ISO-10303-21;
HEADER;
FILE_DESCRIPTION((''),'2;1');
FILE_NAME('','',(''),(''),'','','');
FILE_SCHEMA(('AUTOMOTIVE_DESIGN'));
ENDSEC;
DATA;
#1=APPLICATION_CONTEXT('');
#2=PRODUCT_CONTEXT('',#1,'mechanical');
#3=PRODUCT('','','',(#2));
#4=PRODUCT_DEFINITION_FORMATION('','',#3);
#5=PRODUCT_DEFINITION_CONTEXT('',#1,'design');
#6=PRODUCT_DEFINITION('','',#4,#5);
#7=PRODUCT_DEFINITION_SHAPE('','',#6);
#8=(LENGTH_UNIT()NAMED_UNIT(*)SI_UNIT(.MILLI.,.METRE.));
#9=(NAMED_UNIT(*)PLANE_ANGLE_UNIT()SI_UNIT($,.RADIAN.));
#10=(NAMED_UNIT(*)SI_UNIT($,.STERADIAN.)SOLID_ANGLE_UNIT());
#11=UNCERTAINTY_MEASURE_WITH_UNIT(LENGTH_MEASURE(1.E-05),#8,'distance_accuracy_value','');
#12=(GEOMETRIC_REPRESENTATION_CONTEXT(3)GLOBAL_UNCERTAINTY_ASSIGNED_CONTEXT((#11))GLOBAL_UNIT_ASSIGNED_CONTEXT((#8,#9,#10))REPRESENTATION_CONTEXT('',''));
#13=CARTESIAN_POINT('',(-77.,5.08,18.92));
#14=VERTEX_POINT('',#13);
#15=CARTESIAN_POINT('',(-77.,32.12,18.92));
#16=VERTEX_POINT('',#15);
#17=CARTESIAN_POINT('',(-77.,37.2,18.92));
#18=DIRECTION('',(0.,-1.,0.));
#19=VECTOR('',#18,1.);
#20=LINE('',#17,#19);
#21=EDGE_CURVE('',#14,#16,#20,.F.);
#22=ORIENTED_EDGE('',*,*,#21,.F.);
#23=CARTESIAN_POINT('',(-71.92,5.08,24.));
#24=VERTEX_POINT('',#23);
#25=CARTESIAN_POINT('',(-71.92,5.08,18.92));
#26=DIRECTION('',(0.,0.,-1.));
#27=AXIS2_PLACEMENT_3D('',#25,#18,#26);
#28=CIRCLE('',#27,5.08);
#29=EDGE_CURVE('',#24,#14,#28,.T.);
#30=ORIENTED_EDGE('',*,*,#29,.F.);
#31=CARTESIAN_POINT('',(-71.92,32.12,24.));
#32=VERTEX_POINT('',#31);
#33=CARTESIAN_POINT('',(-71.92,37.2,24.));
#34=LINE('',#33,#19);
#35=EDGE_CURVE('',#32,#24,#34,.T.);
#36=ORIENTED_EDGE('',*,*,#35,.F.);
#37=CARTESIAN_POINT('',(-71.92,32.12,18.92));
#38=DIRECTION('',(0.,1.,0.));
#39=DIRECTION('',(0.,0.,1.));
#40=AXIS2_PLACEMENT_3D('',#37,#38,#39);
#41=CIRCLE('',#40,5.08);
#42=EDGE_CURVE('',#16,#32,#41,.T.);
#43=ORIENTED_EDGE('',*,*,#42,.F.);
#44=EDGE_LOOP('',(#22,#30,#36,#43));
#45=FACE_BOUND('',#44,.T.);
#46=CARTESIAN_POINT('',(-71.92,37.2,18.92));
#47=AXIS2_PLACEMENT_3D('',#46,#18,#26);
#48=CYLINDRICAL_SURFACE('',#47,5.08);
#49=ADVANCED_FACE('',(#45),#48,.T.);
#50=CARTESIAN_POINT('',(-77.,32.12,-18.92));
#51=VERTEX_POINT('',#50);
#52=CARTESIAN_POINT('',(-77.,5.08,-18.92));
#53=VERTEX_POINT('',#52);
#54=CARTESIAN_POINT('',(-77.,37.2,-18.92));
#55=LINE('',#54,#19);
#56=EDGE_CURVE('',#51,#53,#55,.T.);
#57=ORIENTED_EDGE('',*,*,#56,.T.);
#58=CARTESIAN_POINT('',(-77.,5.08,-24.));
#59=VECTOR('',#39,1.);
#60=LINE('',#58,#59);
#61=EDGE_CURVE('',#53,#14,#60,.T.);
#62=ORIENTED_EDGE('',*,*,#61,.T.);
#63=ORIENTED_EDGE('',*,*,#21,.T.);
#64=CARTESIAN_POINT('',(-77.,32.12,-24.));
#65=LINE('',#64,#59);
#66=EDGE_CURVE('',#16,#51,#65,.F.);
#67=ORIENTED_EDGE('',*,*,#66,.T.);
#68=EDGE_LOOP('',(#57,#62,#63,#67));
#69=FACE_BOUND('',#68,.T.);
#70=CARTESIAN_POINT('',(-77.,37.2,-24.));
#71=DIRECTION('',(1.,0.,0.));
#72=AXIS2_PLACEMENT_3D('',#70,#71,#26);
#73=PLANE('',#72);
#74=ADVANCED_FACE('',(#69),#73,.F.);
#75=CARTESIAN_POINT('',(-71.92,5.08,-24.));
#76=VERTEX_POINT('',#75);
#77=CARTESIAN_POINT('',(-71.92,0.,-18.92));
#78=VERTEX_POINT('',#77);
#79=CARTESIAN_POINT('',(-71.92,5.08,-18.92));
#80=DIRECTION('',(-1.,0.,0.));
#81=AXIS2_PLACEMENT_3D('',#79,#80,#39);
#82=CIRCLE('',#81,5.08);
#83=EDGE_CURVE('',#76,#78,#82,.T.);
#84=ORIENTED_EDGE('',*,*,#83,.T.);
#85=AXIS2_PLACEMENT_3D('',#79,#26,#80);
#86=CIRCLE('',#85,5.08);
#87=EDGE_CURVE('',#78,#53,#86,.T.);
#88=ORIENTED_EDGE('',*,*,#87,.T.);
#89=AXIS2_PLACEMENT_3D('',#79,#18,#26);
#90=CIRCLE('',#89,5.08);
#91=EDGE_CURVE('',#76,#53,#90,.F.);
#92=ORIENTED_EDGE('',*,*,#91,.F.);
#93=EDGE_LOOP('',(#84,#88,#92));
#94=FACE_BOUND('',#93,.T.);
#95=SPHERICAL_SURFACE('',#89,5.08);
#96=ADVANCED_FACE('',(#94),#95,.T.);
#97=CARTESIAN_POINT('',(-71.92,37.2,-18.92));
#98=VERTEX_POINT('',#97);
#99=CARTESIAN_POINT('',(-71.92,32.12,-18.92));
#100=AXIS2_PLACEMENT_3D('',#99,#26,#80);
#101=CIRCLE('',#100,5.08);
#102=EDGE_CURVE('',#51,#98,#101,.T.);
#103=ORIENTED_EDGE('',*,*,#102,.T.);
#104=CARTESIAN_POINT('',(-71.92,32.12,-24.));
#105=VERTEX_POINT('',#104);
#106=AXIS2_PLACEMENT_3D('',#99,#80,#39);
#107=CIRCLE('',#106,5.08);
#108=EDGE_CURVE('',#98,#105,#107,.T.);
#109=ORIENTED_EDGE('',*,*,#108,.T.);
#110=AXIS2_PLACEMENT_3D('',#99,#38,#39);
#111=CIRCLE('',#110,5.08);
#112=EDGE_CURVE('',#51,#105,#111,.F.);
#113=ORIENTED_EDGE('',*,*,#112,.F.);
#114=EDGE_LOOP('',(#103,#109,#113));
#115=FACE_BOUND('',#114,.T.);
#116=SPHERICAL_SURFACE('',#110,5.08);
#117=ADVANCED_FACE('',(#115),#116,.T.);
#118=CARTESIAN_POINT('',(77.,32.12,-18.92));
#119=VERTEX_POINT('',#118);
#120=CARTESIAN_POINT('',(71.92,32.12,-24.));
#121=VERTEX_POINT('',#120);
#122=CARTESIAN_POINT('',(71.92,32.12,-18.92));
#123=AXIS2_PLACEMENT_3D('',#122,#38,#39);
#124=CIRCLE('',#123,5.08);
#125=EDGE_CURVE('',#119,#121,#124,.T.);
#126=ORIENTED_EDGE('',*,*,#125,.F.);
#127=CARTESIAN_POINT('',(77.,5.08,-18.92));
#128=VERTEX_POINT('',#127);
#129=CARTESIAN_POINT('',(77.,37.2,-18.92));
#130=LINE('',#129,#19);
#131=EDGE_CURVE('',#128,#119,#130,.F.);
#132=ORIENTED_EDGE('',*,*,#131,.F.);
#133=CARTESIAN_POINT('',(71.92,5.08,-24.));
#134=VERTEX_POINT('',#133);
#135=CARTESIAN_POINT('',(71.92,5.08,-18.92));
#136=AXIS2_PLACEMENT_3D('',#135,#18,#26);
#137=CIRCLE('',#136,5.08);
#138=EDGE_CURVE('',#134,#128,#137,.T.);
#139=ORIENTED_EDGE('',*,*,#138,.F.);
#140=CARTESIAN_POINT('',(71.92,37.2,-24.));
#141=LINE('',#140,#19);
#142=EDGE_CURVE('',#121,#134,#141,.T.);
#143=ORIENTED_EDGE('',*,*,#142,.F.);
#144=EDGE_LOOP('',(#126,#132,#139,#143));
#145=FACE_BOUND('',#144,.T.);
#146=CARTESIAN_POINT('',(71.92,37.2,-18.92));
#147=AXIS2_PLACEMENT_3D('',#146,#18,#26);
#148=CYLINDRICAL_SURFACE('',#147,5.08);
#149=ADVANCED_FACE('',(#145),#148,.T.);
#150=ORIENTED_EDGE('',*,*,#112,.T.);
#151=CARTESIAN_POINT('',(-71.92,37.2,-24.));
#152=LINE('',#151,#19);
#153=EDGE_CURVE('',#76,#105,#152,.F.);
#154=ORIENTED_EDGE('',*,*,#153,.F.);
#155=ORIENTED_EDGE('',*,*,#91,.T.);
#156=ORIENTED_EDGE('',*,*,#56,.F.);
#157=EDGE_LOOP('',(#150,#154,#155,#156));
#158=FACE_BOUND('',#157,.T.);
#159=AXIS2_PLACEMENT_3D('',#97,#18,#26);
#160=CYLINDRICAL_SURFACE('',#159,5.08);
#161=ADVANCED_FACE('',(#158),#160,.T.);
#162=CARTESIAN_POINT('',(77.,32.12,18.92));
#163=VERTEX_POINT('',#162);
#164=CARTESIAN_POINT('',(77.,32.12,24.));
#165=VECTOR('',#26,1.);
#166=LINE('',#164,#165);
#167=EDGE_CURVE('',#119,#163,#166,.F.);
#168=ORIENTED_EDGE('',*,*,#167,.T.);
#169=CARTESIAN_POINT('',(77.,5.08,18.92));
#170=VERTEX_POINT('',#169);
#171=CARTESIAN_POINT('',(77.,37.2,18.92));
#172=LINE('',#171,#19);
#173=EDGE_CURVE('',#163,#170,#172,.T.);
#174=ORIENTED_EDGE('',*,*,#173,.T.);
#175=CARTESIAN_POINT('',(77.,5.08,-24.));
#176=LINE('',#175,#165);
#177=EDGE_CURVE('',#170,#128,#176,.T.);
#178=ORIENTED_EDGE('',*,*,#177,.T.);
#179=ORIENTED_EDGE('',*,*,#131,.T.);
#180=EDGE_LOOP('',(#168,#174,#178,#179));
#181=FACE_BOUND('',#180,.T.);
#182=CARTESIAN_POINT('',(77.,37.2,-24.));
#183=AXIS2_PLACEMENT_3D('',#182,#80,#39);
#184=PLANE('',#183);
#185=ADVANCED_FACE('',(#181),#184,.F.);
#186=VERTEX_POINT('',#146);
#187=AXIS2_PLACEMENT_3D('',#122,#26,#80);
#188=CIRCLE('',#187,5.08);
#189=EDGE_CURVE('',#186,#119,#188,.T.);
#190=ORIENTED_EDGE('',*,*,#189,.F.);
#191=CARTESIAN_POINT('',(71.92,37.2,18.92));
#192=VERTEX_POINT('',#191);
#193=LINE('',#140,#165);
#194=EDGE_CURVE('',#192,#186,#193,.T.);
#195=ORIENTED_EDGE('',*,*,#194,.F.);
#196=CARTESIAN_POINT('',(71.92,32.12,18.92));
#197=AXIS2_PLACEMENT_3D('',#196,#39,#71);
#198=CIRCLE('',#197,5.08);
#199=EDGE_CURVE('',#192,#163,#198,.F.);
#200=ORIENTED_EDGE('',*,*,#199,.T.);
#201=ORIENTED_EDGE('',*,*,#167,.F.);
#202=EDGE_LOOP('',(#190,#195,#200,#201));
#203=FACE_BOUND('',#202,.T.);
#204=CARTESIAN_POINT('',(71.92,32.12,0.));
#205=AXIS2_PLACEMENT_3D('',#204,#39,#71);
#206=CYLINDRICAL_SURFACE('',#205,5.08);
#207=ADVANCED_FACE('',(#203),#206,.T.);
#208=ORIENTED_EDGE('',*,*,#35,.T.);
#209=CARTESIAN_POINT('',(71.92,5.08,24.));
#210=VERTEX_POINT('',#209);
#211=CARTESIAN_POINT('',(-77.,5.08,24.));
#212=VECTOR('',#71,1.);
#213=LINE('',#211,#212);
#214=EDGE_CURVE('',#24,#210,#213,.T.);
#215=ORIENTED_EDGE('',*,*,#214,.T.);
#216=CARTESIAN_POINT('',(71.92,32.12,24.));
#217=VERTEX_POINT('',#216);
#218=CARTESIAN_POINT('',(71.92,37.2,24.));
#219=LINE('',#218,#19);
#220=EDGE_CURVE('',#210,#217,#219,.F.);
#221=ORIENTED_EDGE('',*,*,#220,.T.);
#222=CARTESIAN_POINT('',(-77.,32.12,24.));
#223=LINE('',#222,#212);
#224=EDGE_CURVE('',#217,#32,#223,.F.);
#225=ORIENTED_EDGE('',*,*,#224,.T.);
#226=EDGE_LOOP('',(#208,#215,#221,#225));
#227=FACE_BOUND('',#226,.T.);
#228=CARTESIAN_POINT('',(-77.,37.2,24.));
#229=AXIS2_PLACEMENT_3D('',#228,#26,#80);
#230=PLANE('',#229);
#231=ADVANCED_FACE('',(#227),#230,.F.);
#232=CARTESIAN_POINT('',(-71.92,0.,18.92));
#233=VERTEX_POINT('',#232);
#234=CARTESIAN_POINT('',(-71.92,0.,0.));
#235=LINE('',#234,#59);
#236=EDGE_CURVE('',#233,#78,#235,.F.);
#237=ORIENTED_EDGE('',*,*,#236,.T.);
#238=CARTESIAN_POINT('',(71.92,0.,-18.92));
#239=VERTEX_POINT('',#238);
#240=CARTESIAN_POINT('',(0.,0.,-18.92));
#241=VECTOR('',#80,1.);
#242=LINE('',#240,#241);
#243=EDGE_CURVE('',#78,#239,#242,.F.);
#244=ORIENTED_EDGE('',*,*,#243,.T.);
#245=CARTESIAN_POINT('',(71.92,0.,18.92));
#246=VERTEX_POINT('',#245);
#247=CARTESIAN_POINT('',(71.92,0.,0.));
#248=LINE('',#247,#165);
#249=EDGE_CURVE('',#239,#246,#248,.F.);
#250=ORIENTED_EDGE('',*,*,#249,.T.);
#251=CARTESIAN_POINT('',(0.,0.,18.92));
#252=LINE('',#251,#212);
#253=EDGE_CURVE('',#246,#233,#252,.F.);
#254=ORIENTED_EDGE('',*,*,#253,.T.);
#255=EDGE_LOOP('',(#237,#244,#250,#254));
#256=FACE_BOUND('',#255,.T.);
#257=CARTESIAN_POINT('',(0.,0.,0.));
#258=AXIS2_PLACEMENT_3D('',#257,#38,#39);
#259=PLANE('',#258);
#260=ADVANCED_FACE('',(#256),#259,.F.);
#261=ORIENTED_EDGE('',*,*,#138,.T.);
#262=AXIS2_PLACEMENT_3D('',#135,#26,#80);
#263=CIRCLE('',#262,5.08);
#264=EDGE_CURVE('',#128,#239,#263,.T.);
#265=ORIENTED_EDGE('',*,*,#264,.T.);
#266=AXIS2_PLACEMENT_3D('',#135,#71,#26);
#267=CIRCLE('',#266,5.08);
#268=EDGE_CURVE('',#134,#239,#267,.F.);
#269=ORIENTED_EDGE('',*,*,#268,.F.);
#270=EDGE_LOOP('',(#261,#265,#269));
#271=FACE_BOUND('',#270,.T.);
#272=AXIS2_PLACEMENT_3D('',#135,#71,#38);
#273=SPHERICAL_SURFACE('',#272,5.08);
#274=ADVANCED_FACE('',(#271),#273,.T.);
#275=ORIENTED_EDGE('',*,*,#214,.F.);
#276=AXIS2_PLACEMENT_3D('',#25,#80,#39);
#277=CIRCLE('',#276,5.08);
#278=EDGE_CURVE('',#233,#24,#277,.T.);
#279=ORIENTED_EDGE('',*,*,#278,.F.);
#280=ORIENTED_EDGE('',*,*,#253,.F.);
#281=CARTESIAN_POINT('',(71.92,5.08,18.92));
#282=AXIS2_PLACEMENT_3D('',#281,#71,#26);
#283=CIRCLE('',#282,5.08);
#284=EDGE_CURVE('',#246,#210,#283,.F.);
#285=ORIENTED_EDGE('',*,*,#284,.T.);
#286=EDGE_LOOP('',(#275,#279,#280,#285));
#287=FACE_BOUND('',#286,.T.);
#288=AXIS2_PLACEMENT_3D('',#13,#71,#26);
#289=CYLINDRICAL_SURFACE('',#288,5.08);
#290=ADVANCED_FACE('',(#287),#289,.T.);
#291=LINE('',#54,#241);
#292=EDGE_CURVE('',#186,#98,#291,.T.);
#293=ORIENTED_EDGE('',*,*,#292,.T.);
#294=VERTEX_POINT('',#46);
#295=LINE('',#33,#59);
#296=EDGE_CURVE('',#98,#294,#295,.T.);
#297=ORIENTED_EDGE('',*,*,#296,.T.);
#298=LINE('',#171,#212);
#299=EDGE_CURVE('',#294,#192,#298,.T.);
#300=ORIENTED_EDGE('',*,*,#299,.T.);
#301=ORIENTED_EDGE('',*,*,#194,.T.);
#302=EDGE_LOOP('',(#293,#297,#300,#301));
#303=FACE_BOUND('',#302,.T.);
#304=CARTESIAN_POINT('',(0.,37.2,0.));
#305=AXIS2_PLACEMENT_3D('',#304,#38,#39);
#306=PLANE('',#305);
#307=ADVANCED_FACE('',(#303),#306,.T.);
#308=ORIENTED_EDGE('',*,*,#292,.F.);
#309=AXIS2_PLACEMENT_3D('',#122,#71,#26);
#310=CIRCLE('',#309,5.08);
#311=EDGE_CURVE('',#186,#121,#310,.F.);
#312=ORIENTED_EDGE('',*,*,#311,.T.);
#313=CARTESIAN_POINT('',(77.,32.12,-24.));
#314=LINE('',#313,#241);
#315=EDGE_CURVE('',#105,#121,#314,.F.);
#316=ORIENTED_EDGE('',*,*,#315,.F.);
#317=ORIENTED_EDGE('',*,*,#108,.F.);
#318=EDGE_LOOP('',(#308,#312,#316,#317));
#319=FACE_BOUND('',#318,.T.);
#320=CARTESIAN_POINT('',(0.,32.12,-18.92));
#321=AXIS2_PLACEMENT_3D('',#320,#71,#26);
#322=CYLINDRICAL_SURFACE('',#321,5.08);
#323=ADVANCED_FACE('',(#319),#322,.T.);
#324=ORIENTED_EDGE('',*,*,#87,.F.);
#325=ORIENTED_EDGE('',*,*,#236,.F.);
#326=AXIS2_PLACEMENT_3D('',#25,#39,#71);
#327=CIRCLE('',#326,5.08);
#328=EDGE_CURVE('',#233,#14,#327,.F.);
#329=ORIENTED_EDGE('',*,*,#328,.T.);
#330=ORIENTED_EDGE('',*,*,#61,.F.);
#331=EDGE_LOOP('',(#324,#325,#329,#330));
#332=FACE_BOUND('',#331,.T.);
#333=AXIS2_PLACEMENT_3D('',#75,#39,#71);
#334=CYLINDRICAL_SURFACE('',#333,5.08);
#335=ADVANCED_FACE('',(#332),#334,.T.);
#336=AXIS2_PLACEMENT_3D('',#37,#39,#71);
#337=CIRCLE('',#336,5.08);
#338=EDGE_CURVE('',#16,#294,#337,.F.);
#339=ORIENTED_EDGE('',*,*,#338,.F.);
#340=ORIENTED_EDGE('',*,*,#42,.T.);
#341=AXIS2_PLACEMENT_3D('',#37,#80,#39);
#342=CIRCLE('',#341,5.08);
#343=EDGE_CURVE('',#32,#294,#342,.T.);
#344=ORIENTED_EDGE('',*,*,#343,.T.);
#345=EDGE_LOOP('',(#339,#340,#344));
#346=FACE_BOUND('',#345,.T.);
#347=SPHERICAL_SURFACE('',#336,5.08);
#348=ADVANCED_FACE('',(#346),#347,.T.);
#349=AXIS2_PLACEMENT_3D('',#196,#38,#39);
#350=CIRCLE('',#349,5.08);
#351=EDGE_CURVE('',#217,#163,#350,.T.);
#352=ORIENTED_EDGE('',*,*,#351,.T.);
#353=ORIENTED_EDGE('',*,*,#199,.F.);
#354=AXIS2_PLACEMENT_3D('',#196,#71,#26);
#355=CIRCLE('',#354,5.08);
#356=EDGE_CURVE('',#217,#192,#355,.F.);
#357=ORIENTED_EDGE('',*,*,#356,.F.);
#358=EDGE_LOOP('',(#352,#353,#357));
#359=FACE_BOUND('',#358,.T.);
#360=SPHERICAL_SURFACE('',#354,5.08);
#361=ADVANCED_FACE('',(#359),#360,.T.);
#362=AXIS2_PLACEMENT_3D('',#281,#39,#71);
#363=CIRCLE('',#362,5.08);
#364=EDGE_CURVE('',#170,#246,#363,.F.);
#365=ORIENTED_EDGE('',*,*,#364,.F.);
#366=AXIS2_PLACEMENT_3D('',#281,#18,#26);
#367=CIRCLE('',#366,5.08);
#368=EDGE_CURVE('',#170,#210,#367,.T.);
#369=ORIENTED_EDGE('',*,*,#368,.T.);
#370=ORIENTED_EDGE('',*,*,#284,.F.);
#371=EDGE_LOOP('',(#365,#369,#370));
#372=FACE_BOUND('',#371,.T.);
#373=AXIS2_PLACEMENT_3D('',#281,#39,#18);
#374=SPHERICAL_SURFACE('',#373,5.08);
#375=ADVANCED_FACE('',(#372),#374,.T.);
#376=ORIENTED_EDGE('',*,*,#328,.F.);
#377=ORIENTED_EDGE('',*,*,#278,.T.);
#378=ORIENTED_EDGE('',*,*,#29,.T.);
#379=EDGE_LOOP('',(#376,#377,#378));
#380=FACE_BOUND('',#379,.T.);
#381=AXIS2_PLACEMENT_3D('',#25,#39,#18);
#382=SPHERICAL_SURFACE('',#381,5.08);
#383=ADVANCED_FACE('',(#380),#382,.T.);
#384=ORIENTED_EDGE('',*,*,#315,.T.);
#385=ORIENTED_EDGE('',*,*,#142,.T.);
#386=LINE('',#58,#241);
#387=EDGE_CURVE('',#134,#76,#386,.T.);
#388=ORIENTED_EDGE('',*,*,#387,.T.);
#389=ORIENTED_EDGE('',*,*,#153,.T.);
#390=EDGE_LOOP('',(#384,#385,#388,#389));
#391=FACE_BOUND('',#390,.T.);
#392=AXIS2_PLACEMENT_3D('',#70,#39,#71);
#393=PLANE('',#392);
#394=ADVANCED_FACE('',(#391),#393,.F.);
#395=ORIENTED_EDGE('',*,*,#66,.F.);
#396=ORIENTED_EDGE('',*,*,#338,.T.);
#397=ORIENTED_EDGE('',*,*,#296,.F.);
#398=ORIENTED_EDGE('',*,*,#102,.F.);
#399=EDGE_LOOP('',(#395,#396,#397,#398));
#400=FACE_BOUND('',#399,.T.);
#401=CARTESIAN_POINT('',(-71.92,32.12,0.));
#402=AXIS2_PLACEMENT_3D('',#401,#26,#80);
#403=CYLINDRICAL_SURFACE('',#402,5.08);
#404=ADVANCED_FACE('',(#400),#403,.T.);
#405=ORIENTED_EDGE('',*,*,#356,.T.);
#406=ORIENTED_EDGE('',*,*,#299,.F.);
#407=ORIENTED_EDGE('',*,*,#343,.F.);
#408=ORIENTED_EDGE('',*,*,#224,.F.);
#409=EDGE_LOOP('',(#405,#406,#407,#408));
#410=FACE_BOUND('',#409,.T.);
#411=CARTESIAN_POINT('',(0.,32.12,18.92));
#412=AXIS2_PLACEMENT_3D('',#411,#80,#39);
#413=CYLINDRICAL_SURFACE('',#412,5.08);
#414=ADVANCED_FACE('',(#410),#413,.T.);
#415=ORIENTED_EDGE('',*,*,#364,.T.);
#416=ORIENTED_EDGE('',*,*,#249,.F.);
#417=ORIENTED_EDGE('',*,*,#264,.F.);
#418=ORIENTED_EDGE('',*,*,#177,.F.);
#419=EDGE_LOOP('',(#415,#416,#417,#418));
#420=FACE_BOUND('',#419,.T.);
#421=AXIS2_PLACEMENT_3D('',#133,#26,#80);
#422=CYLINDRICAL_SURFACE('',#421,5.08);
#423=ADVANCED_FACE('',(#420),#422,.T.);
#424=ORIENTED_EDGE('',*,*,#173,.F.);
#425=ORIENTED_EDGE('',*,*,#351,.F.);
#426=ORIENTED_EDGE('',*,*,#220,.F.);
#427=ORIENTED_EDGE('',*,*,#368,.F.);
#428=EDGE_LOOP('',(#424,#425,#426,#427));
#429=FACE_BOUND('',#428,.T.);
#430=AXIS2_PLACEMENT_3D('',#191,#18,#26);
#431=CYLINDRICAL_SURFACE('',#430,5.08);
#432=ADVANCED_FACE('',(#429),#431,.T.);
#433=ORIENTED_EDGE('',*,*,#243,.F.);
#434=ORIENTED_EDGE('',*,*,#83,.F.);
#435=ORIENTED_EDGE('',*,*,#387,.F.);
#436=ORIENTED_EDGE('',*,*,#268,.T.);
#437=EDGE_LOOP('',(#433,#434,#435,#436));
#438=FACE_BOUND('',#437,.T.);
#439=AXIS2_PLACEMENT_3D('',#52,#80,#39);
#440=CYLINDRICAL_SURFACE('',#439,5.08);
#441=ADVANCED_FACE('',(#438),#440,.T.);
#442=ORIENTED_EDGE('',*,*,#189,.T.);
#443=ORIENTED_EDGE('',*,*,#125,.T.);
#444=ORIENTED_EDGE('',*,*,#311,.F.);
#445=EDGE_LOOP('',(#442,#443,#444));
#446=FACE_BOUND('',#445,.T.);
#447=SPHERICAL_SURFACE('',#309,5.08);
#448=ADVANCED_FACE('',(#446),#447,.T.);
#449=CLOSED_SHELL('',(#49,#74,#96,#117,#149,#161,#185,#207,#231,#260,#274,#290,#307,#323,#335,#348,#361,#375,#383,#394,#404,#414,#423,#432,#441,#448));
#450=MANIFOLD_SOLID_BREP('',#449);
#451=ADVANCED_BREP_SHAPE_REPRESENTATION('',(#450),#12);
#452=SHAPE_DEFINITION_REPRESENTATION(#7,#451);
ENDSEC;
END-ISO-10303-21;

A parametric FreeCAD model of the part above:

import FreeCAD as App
import Part
import Sketcher

doc = App.newDocument("Part")
body = doc.addObject("PartDesign::Body", "Body")

# Sketch on XZ plane
sketch1 = doc.addObject("Sketcher::SketchObject", "Sketch")
body.addObject(sketch1)
sketch1.AttachmentSupport = (doc.XZ_Plane, [""])
sketch1.MapMode = "FlatFace"
sketch1.addGeometry([
    Part.LineSegment(App.Vector(-77, -24, 0), App.Vector(-77, 24, 0)),
    Part.LineSegment(App.Vector(-77, 24, 0), App.Vector(77, 24, 0)),
    Part.LineSegment(App.Vector(77, 24, 0), App.Vector(77, -24, 0)),
    Part.LineSegment(App.Vector(77, -24, 0), App.Vector(-77, -24, 0)),
], False)
sketch1.addConstraint([
    Sketcher.Constraint("Coincident", 0, 2, 1, 1),
    Sketcher.Constraint("Coincident", 1, 2, 2, 1),
    Sketcher.Constraint("Coincident", 2, 2, 3, 1),
    Sketcher.Constraint("Coincident", 3, 2, 0, 1),
    Sketcher.Constraint("Vertical", 0),
    Sketcher.Constraint("Horizontal", 1),
    Sketcher.Constraint("Vertical", 2),
    Sketcher.Constraint("Horizontal", 3),
    Sketcher.Constraint("Symmetric", 0, 2, 2, 2, -1, 1),
    Sketcher.Constraint("DistanceX", 1, 1, 1, 2, 154.0),
    Sketcher.Constraint("DistanceY", 0, 1, 0, 2, 48.0),
])
pad1 = doc.addObject("PartDesign::Pad", "Pad")
body.addObject(pad1)
pad1.Profile = sketch1
pad1.Length = 37.2
pad1.Reversed = True
doc.recompute()

fillet = doc.addObject("PartDesign::Fillet", "Fillet")
body.addObject(fillet)
fillet.Base = (pad1, ["Edge1"])
fillet.UseAllEdges = True
fillet.Radius = 5.08

doc.recompute()
